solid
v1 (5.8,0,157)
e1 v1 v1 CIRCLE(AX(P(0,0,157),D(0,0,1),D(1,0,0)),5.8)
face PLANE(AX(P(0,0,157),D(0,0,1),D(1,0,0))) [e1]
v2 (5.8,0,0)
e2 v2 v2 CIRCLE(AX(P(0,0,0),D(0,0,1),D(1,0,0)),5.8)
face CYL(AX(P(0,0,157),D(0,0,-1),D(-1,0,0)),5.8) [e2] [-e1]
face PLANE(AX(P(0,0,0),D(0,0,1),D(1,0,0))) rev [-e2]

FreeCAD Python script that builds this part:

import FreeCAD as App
import Part
import Sketcher

V = App.Vector

doc = App.newDocument("Part")
body = doc.addObject("PartDesign::Body", "Body")

# Sketch on XY plane
sketch1 = body.newObject("Sketcher::SketchObject", "Sketch")
sketch1.AttachmentSupport = (doc.getObject("XY_Plane"), [""])
sketch1.MapMode = "FlatFace"
sketch1.addGeometry(Part.Circle(V(0, 0, 0), V(0, 0, 1), 6), False)
sketch1.addConstraint([
    Sketcher.Constraint("Coincident", 0, 3, -1, 1),
    Sketcher.Constraint("Diameter", 0, 11.6),
])
pad1 = body.newObject("PartDesign::Pad", "Pad")
pad1.Profile = sketch1
pad1.Length = 157

doc.recompute()
